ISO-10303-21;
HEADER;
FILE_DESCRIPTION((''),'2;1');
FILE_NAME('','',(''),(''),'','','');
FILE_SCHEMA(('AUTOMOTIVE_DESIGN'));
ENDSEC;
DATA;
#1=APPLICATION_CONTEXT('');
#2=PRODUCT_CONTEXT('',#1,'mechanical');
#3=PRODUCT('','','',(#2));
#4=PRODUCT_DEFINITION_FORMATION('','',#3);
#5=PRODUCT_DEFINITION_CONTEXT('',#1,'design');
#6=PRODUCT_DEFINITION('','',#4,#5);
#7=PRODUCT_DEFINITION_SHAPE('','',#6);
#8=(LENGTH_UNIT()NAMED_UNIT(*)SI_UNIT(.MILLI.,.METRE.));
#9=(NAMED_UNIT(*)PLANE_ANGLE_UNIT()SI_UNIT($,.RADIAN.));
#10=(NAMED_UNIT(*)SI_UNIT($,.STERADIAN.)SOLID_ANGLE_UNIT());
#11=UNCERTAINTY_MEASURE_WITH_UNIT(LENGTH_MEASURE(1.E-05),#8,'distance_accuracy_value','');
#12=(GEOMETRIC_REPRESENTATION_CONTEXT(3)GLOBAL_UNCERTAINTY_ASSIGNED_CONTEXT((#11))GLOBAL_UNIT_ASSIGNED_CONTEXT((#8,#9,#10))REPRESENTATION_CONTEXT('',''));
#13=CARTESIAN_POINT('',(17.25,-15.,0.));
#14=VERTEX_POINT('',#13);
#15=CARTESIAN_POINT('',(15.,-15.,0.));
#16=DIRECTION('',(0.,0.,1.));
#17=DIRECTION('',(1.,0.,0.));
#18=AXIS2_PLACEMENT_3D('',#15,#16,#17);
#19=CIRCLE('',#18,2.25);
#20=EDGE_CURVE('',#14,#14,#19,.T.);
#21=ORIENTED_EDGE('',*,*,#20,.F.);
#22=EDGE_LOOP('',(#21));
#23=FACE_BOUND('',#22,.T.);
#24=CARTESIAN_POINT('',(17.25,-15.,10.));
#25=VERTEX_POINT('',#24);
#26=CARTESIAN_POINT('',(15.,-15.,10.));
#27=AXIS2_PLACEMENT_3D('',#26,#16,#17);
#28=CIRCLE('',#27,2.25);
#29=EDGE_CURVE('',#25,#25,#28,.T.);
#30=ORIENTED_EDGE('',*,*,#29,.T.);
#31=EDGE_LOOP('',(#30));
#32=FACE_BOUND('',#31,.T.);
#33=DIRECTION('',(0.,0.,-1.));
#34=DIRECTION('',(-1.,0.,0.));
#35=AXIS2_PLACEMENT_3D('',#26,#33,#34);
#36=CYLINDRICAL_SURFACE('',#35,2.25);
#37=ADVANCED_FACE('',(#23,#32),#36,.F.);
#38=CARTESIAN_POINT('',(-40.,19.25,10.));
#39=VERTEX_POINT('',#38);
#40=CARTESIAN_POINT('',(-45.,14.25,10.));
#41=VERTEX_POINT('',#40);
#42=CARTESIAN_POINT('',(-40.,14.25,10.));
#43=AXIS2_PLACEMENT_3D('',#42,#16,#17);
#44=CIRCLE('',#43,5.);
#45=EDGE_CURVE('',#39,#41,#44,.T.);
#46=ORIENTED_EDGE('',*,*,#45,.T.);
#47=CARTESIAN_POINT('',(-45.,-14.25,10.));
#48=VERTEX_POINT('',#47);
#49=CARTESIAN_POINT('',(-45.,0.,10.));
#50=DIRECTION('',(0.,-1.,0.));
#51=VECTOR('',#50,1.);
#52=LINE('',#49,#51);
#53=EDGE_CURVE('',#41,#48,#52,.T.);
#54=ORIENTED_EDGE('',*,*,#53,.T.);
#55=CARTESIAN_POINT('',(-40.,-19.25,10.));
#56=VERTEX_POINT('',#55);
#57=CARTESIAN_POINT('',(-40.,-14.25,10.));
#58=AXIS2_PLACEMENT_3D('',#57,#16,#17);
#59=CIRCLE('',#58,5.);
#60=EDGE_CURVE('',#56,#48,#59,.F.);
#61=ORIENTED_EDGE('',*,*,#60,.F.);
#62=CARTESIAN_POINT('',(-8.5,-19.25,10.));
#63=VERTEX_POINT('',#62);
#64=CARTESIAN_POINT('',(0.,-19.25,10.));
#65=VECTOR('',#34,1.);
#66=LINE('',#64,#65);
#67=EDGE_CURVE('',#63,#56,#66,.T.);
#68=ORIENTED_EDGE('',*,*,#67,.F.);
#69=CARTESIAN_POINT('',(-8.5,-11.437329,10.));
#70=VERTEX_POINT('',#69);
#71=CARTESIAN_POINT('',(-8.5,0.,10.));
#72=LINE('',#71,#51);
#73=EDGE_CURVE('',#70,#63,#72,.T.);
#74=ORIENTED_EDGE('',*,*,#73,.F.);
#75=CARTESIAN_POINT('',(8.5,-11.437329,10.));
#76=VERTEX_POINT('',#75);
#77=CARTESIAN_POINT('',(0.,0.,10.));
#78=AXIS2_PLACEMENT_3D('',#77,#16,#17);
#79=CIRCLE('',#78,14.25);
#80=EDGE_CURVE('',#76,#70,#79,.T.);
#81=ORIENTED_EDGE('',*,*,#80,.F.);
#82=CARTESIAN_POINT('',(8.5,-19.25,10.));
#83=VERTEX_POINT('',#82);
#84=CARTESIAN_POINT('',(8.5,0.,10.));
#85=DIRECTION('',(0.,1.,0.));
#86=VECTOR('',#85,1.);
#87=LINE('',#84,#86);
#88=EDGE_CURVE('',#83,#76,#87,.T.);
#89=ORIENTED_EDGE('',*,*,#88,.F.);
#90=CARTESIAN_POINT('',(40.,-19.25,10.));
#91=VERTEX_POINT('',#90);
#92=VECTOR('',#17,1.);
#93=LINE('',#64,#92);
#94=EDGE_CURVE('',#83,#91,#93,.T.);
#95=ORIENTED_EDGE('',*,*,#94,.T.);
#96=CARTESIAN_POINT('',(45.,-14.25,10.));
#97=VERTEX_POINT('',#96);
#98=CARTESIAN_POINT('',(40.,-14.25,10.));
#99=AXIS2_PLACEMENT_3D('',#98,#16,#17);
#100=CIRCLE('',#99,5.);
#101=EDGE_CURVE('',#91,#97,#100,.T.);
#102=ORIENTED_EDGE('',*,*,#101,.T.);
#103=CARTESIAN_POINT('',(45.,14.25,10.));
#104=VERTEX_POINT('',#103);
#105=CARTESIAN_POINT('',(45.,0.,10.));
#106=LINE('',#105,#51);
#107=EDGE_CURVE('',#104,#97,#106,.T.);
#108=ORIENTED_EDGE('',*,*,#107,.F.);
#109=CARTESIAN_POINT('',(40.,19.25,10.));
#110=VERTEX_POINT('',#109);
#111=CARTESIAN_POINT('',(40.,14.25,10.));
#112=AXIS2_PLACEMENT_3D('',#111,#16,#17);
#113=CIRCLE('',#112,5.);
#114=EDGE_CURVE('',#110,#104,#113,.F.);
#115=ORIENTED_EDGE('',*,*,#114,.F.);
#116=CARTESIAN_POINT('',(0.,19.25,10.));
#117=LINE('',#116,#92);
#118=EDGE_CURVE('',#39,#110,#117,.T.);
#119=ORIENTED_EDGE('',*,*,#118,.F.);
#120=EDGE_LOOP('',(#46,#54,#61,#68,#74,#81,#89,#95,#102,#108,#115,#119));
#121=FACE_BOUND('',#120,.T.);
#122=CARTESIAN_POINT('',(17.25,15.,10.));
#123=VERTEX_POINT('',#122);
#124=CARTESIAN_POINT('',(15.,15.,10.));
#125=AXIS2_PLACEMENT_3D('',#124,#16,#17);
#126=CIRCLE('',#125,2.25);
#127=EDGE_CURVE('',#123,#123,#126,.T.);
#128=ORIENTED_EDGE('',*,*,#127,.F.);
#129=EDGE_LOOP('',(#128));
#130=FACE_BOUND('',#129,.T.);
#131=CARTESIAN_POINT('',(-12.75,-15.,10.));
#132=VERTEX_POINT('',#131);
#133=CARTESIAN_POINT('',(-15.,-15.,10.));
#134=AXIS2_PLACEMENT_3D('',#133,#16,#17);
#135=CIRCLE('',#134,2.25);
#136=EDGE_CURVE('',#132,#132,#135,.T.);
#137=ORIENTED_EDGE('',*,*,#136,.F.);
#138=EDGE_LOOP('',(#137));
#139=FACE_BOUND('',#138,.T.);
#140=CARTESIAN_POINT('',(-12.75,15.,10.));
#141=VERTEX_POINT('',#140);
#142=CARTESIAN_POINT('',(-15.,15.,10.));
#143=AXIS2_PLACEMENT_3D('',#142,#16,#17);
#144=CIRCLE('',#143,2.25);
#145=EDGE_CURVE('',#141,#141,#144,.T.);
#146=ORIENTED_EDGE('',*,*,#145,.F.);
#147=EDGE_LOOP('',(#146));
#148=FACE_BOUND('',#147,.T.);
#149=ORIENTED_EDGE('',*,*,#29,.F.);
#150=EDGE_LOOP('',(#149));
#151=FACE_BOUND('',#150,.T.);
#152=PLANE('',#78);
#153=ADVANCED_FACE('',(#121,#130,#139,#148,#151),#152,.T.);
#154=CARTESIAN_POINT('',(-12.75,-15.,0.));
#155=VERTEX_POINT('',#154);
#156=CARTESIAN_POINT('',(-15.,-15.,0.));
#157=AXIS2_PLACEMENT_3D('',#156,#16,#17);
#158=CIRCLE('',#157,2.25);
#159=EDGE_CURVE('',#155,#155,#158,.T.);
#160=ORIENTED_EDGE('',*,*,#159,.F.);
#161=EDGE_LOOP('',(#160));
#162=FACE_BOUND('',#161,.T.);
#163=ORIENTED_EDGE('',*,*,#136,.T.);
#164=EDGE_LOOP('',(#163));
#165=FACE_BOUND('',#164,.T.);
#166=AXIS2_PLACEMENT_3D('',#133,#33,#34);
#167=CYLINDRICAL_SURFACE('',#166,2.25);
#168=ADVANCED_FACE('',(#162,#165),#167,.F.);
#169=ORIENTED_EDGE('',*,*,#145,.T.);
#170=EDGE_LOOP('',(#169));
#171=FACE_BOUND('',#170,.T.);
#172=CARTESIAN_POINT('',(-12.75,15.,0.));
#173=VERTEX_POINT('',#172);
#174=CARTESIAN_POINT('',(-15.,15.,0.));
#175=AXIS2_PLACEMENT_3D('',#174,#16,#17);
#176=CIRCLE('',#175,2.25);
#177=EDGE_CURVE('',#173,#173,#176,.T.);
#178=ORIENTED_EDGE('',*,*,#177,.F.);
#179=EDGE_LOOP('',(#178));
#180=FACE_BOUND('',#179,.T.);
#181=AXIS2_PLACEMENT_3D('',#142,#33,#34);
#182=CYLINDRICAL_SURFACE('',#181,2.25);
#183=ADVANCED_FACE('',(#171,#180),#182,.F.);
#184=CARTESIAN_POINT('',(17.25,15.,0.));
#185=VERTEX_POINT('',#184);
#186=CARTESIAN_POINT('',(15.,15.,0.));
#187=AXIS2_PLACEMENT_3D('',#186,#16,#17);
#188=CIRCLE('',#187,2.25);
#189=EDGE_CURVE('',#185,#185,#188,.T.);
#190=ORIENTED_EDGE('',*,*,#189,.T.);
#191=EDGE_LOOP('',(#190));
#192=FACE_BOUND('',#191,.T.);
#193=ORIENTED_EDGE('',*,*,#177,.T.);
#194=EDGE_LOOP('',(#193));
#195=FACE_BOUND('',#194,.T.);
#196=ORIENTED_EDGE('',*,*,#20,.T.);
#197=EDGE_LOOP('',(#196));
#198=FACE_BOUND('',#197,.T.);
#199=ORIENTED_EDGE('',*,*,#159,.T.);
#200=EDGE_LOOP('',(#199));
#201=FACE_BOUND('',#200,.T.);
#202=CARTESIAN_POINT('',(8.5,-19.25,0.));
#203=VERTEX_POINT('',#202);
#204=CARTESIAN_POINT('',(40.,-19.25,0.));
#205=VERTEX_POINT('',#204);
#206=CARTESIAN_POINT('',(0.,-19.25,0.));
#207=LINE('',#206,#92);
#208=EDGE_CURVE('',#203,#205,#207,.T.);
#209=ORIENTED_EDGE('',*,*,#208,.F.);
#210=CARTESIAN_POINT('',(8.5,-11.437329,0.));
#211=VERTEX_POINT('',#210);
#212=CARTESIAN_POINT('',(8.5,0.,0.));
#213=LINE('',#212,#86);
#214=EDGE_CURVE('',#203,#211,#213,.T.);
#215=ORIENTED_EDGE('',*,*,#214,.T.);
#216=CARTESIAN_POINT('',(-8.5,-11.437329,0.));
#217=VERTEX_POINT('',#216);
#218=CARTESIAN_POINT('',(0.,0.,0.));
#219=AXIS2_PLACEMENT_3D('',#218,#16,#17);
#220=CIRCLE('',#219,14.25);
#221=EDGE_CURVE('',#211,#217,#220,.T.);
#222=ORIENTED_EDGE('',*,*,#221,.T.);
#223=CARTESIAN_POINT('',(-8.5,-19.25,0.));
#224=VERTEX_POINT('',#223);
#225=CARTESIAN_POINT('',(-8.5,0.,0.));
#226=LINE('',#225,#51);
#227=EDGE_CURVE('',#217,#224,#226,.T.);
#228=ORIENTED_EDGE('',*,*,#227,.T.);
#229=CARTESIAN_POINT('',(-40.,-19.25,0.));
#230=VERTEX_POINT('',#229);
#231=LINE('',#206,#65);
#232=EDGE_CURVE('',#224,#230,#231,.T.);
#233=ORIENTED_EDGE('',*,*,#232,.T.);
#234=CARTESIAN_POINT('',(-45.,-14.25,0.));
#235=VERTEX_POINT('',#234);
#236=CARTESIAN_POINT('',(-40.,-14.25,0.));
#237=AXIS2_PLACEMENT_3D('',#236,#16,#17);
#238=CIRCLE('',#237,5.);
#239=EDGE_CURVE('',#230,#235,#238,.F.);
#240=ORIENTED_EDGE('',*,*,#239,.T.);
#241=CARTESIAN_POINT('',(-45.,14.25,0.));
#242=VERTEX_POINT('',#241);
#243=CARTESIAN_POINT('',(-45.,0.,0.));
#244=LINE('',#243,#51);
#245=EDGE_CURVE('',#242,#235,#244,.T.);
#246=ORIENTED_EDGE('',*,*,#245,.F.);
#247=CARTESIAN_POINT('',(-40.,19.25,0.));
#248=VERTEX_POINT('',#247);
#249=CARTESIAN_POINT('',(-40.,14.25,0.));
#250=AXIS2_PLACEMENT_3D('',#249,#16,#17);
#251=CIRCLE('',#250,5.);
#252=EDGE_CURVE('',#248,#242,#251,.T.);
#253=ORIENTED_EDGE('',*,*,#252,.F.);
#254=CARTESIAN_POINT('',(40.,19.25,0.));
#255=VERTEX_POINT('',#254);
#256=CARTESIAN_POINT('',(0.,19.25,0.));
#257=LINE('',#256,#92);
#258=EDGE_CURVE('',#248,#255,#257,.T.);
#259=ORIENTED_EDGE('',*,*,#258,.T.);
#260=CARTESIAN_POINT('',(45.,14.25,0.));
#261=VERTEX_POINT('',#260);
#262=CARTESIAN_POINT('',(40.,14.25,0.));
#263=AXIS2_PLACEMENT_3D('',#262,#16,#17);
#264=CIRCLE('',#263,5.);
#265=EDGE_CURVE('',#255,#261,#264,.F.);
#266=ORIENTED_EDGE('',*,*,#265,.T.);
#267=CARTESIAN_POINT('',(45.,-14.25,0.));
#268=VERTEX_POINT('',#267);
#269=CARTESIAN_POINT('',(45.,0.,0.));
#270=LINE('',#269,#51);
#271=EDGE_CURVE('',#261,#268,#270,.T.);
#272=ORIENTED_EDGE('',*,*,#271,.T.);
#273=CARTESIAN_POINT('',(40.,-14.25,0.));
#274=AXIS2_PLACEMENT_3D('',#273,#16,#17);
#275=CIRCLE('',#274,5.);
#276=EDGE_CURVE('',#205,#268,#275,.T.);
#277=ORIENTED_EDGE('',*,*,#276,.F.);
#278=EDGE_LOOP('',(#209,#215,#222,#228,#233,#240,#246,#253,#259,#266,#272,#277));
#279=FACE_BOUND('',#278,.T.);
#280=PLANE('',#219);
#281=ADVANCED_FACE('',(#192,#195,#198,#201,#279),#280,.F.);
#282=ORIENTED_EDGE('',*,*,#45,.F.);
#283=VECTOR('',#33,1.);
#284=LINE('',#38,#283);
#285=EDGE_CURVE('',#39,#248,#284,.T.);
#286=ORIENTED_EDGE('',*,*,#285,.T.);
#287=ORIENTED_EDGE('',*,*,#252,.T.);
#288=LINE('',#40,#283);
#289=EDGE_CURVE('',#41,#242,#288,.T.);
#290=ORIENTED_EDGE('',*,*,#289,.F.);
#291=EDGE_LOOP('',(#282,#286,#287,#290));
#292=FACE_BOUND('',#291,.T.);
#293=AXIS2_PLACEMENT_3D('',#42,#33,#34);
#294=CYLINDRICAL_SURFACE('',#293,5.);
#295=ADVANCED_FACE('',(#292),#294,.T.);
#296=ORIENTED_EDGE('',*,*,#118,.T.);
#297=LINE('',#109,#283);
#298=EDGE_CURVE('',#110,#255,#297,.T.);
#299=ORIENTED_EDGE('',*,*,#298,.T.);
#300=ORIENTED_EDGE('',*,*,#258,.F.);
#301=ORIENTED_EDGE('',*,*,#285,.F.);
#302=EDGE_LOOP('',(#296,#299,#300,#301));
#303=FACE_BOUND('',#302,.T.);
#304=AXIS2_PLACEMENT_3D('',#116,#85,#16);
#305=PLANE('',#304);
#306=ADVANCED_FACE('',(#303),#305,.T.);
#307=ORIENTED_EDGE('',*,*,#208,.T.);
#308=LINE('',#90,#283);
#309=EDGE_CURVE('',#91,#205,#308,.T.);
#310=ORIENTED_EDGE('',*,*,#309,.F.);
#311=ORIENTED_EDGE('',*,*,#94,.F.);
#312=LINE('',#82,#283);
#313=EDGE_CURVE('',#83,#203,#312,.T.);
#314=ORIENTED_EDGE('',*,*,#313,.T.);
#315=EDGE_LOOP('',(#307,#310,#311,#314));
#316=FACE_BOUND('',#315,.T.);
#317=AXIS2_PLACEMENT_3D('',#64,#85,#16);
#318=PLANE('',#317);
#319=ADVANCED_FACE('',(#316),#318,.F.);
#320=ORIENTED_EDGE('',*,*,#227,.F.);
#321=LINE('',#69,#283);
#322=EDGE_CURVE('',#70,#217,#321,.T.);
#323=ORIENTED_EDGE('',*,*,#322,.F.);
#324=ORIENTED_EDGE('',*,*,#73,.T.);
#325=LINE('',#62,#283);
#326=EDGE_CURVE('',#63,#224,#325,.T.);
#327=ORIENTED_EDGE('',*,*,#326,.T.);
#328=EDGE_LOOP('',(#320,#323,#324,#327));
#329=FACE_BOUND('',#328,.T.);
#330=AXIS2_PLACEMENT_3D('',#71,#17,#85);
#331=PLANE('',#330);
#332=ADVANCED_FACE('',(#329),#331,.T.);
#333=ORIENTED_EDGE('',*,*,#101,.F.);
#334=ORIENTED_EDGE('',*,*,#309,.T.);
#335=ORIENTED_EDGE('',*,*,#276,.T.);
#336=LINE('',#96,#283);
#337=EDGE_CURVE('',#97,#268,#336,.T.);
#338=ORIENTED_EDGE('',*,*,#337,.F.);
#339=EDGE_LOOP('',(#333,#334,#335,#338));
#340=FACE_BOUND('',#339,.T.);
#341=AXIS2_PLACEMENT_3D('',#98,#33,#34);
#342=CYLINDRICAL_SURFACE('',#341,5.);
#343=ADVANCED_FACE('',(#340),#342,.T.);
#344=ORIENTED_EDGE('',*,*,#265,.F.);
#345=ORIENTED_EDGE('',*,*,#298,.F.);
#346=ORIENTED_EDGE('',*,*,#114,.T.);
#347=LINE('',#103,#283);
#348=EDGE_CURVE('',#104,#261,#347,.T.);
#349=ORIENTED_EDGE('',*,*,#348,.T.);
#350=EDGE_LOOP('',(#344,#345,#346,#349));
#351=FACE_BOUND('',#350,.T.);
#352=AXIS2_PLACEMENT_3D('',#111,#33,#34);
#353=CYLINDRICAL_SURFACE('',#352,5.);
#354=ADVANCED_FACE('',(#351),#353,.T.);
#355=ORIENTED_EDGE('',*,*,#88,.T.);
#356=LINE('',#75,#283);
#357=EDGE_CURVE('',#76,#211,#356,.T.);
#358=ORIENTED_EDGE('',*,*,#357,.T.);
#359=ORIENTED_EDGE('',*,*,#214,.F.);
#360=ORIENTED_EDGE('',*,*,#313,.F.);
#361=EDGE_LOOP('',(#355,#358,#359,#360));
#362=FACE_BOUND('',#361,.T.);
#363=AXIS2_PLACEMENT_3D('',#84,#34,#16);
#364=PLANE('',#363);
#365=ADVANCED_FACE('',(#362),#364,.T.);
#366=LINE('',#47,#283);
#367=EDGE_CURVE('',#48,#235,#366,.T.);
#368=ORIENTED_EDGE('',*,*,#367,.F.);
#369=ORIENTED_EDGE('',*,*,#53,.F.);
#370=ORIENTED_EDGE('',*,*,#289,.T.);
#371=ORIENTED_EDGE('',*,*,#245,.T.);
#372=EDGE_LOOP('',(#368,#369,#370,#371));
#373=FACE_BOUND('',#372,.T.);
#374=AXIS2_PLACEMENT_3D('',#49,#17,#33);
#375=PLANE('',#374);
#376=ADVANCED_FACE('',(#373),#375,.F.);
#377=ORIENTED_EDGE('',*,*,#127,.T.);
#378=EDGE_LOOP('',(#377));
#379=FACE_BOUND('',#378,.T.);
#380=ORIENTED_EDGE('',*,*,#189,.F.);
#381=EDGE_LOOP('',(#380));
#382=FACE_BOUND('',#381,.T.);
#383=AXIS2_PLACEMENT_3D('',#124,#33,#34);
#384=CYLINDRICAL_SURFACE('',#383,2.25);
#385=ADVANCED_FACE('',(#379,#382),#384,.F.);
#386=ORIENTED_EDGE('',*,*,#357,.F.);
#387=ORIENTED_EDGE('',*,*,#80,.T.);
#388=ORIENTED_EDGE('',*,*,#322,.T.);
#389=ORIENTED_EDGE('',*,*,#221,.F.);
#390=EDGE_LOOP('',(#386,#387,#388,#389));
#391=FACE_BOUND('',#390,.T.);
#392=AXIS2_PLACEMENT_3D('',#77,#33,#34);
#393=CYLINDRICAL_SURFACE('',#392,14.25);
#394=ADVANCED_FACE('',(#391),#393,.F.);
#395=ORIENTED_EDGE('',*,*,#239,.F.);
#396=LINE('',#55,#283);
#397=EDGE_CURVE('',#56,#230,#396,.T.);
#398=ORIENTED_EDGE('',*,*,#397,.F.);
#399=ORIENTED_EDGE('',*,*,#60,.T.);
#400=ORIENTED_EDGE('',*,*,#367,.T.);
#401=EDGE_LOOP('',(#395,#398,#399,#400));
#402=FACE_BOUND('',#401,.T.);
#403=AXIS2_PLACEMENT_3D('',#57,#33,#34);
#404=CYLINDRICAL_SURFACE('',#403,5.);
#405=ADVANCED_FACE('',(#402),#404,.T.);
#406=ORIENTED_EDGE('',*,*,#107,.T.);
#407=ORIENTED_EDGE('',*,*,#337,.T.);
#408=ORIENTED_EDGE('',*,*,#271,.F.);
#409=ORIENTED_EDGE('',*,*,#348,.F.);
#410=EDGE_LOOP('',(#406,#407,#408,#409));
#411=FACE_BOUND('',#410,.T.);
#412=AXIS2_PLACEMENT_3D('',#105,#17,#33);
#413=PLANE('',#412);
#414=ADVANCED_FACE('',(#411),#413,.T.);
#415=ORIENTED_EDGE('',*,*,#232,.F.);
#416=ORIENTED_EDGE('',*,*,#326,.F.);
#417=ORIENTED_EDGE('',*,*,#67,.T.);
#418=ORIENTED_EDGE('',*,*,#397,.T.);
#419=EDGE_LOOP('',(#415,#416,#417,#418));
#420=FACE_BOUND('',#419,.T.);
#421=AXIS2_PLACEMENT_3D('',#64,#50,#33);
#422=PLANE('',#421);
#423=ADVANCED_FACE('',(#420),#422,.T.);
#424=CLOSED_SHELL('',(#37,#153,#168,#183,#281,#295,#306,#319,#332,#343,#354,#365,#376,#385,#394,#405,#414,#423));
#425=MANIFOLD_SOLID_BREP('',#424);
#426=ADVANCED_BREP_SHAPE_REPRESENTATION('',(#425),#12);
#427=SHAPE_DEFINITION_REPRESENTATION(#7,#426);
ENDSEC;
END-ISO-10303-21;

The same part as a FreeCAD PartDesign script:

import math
import FreeCAD as App
import Part
import Sketcher
from FreeCAD import Vector
Q = App.Units.Quantity

doc = App.newDocument("Part")
body = doc.addObject("PartDesign::Body", "Body")

# Sketch on XY plane
sketch1 = body.newObject("Sketcher::SketchObject", "Sketch")
sketch1.AttachmentSupport = (doc.getObject("XY_Plane"), [""])
sketch1.MapMode = "FlatFace"
sketch1.addGeometry([
    Part.ArcOfCircle(Part.Circle(Vector(-40, 14.2, 0), Vector(0, 0, 1), 5), math.radians(90), math.radians(180)),  # 0
    Part.LineSegment(Vector(-45, 14.2, 0), Vector(-45, -14.2, 0)),  # 1
    Part.ArcOfCircle(Part.Circle(Vector(-40, -14.2, 0), Vector(0, 0, 1), 5), math.radians(180), math.radians(270)),  # 2
    Part.LineSegment(Vector(-40, -19.2, 0), Vector(-8.5, -19.2, 0)),  # 3
    Part.LineSegment(Vector(-8.5, -19.2, 0), Vector(-8.5, -11.4, 0)),  # 4
    Part.ArcOfCircle(Part.Circle(Vector(0, 0, 0), Vector(0, 0, 1), 14.2), math.radians(-53), math.radians(233)),  # 5
    Part.LineSegment(Vector(8.5, -11.4, 0), Vector(8.5, -19.2, 0)),  # 6
    Part.LineSegment(Vector(8.5, -19.2, 0), Vector(40, -19.2, 0)),  # 7
    Part.ArcOfCircle(Part.Circle(Vector(40, -14.2, 0), Vector(0, 0, 1), 5), math.radians(-90), math.radians(0)),  # 8
    Part.LineSegment(Vector(45, -14.2, 0), Vector(45, 14.2, 0)),  # 9
    Part.ArcOfCircle(Part.Circle(Vector(40, 14.2, 0), Vector(0, 0, 1), 5), math.radians(0), math.radians(90)),  # 10
    Part.LineSegment(Vector(40, 19.2, 0), Vector(-40, 19.2, 0)),  # 11
    Part.Circle(Vector(-15, -15, 0), Vector(0, 0, 1), 2.2),  # 12
    Part.Circle(Vector(15, -15, 0), Vector(0, 0, 1), 2.2),  # 13
    Part.Circle(Vector(-15, 15, 0), Vector(0, 0, 1), 2.2),  # 14
    Part.Circle(Vector(15, 15, 0), Vector(0, 0, 1), 2.2),  # 15
], False)
sketch1.addConstraint([
    Sketcher.Constraint("Tangent", 0, 2, 1, 1),
    Sketcher.Constraint("Tangent", 1, 2, 2, 1),
    Sketcher.Constraint("Tangent", 2, 2, 3, 1),
    Sketcher.Constraint("Coincident", 3, 2, 4, 1),
    Sketcher.Constraint("Coincident", 4, 2, 5, 2),
    Sketcher.Constraint("Coincident", 5, 1, 6, 1),
    Sketcher.Constraint("Coincident", 6, 2, 7, 1),
    Sketcher.Constraint("Tangent", 7, 2, 8, 1),
    Sketcher.Constraint("Tangent", 8, 2, 9, 1),
    Sketcher.Constraint("Tangent", 9, 2, 10, 1),
    Sketcher.Constraint("Tangent", 10, 2, 11, 1),
    Sketcher.Constraint("Tangent", 11, 2, 0, 1),
    Sketcher.Constraint("Vertical", 1),
    Sketcher.Constraint("Horizontal", 3),
    Sketcher.Constraint("Vertical", 4),
    Sketcher.Constraint("Vertical", 6),
    Sketcher.Constraint("Horizontal", 7),
    Sketcher.Constraint("Vertical", 9),
    Sketcher.Constraint("Horizontal", 11),
    Sketcher.Constraint("Coincident", 5, 3, -1, 1),
    Sketcher.Constraint("Equal", 0, 2),
    Sketcher.Constraint("Equal", 2, 8),
    Sketcher.Constraint("Equal", 8, 10),
    Sketcher.Constraint("Equal", 12, 13),
    Sketcher.Constraint("Equal", 13, 14),
    Sketcher.Constraint("Equal", 14, 15),
    Sketcher.Constraint("Symmetric", 0, 3, 8, 3, -1, 1),
    Sketcher.Constraint("Symmetric", 13, 3, 14, 3, -1, 1),
    Sketcher.Constraint("Symmetric", 12, 3, 15, 3, -1, 1),
    Sketcher.Constraint("Symmetric", 12, 3, 13, 3, -2),
    Sketcher.Constraint("Symmetric", 3, 2, 6, 2, -2),
    Sketcher.Constraint("Radius", 0, Q("5 mm")),
    Sketcher.Constraint("Diameter", 12, Q("4.5 mm")),
    Sketcher.Constraint("DistanceX", 11, 2, 11, 1, Q("80 mm")),
    Sketcher.Constraint("Radius", 5, Q("14.25 mm")),
    Sketcher.Constraint("DistanceX", 3, 1, 3, 2, Q("31.5 mm")),
    Sketcher.Constraint("DistanceY", 1, 2, 1, 1, Q("28.5 mm")),
    Sketcher.Constraint("DistanceX", 12, 3, -1, 1, Q("15 mm")),
    Sketcher.Constraint("DistanceY", 12, 3, -1, 1, Q("15 mm")),
])
pad1 = body.newObject("PartDesign::Pad", "Pad")
pad1.Profile = sketch1
pad1.Length = 10

doc.recompute()
